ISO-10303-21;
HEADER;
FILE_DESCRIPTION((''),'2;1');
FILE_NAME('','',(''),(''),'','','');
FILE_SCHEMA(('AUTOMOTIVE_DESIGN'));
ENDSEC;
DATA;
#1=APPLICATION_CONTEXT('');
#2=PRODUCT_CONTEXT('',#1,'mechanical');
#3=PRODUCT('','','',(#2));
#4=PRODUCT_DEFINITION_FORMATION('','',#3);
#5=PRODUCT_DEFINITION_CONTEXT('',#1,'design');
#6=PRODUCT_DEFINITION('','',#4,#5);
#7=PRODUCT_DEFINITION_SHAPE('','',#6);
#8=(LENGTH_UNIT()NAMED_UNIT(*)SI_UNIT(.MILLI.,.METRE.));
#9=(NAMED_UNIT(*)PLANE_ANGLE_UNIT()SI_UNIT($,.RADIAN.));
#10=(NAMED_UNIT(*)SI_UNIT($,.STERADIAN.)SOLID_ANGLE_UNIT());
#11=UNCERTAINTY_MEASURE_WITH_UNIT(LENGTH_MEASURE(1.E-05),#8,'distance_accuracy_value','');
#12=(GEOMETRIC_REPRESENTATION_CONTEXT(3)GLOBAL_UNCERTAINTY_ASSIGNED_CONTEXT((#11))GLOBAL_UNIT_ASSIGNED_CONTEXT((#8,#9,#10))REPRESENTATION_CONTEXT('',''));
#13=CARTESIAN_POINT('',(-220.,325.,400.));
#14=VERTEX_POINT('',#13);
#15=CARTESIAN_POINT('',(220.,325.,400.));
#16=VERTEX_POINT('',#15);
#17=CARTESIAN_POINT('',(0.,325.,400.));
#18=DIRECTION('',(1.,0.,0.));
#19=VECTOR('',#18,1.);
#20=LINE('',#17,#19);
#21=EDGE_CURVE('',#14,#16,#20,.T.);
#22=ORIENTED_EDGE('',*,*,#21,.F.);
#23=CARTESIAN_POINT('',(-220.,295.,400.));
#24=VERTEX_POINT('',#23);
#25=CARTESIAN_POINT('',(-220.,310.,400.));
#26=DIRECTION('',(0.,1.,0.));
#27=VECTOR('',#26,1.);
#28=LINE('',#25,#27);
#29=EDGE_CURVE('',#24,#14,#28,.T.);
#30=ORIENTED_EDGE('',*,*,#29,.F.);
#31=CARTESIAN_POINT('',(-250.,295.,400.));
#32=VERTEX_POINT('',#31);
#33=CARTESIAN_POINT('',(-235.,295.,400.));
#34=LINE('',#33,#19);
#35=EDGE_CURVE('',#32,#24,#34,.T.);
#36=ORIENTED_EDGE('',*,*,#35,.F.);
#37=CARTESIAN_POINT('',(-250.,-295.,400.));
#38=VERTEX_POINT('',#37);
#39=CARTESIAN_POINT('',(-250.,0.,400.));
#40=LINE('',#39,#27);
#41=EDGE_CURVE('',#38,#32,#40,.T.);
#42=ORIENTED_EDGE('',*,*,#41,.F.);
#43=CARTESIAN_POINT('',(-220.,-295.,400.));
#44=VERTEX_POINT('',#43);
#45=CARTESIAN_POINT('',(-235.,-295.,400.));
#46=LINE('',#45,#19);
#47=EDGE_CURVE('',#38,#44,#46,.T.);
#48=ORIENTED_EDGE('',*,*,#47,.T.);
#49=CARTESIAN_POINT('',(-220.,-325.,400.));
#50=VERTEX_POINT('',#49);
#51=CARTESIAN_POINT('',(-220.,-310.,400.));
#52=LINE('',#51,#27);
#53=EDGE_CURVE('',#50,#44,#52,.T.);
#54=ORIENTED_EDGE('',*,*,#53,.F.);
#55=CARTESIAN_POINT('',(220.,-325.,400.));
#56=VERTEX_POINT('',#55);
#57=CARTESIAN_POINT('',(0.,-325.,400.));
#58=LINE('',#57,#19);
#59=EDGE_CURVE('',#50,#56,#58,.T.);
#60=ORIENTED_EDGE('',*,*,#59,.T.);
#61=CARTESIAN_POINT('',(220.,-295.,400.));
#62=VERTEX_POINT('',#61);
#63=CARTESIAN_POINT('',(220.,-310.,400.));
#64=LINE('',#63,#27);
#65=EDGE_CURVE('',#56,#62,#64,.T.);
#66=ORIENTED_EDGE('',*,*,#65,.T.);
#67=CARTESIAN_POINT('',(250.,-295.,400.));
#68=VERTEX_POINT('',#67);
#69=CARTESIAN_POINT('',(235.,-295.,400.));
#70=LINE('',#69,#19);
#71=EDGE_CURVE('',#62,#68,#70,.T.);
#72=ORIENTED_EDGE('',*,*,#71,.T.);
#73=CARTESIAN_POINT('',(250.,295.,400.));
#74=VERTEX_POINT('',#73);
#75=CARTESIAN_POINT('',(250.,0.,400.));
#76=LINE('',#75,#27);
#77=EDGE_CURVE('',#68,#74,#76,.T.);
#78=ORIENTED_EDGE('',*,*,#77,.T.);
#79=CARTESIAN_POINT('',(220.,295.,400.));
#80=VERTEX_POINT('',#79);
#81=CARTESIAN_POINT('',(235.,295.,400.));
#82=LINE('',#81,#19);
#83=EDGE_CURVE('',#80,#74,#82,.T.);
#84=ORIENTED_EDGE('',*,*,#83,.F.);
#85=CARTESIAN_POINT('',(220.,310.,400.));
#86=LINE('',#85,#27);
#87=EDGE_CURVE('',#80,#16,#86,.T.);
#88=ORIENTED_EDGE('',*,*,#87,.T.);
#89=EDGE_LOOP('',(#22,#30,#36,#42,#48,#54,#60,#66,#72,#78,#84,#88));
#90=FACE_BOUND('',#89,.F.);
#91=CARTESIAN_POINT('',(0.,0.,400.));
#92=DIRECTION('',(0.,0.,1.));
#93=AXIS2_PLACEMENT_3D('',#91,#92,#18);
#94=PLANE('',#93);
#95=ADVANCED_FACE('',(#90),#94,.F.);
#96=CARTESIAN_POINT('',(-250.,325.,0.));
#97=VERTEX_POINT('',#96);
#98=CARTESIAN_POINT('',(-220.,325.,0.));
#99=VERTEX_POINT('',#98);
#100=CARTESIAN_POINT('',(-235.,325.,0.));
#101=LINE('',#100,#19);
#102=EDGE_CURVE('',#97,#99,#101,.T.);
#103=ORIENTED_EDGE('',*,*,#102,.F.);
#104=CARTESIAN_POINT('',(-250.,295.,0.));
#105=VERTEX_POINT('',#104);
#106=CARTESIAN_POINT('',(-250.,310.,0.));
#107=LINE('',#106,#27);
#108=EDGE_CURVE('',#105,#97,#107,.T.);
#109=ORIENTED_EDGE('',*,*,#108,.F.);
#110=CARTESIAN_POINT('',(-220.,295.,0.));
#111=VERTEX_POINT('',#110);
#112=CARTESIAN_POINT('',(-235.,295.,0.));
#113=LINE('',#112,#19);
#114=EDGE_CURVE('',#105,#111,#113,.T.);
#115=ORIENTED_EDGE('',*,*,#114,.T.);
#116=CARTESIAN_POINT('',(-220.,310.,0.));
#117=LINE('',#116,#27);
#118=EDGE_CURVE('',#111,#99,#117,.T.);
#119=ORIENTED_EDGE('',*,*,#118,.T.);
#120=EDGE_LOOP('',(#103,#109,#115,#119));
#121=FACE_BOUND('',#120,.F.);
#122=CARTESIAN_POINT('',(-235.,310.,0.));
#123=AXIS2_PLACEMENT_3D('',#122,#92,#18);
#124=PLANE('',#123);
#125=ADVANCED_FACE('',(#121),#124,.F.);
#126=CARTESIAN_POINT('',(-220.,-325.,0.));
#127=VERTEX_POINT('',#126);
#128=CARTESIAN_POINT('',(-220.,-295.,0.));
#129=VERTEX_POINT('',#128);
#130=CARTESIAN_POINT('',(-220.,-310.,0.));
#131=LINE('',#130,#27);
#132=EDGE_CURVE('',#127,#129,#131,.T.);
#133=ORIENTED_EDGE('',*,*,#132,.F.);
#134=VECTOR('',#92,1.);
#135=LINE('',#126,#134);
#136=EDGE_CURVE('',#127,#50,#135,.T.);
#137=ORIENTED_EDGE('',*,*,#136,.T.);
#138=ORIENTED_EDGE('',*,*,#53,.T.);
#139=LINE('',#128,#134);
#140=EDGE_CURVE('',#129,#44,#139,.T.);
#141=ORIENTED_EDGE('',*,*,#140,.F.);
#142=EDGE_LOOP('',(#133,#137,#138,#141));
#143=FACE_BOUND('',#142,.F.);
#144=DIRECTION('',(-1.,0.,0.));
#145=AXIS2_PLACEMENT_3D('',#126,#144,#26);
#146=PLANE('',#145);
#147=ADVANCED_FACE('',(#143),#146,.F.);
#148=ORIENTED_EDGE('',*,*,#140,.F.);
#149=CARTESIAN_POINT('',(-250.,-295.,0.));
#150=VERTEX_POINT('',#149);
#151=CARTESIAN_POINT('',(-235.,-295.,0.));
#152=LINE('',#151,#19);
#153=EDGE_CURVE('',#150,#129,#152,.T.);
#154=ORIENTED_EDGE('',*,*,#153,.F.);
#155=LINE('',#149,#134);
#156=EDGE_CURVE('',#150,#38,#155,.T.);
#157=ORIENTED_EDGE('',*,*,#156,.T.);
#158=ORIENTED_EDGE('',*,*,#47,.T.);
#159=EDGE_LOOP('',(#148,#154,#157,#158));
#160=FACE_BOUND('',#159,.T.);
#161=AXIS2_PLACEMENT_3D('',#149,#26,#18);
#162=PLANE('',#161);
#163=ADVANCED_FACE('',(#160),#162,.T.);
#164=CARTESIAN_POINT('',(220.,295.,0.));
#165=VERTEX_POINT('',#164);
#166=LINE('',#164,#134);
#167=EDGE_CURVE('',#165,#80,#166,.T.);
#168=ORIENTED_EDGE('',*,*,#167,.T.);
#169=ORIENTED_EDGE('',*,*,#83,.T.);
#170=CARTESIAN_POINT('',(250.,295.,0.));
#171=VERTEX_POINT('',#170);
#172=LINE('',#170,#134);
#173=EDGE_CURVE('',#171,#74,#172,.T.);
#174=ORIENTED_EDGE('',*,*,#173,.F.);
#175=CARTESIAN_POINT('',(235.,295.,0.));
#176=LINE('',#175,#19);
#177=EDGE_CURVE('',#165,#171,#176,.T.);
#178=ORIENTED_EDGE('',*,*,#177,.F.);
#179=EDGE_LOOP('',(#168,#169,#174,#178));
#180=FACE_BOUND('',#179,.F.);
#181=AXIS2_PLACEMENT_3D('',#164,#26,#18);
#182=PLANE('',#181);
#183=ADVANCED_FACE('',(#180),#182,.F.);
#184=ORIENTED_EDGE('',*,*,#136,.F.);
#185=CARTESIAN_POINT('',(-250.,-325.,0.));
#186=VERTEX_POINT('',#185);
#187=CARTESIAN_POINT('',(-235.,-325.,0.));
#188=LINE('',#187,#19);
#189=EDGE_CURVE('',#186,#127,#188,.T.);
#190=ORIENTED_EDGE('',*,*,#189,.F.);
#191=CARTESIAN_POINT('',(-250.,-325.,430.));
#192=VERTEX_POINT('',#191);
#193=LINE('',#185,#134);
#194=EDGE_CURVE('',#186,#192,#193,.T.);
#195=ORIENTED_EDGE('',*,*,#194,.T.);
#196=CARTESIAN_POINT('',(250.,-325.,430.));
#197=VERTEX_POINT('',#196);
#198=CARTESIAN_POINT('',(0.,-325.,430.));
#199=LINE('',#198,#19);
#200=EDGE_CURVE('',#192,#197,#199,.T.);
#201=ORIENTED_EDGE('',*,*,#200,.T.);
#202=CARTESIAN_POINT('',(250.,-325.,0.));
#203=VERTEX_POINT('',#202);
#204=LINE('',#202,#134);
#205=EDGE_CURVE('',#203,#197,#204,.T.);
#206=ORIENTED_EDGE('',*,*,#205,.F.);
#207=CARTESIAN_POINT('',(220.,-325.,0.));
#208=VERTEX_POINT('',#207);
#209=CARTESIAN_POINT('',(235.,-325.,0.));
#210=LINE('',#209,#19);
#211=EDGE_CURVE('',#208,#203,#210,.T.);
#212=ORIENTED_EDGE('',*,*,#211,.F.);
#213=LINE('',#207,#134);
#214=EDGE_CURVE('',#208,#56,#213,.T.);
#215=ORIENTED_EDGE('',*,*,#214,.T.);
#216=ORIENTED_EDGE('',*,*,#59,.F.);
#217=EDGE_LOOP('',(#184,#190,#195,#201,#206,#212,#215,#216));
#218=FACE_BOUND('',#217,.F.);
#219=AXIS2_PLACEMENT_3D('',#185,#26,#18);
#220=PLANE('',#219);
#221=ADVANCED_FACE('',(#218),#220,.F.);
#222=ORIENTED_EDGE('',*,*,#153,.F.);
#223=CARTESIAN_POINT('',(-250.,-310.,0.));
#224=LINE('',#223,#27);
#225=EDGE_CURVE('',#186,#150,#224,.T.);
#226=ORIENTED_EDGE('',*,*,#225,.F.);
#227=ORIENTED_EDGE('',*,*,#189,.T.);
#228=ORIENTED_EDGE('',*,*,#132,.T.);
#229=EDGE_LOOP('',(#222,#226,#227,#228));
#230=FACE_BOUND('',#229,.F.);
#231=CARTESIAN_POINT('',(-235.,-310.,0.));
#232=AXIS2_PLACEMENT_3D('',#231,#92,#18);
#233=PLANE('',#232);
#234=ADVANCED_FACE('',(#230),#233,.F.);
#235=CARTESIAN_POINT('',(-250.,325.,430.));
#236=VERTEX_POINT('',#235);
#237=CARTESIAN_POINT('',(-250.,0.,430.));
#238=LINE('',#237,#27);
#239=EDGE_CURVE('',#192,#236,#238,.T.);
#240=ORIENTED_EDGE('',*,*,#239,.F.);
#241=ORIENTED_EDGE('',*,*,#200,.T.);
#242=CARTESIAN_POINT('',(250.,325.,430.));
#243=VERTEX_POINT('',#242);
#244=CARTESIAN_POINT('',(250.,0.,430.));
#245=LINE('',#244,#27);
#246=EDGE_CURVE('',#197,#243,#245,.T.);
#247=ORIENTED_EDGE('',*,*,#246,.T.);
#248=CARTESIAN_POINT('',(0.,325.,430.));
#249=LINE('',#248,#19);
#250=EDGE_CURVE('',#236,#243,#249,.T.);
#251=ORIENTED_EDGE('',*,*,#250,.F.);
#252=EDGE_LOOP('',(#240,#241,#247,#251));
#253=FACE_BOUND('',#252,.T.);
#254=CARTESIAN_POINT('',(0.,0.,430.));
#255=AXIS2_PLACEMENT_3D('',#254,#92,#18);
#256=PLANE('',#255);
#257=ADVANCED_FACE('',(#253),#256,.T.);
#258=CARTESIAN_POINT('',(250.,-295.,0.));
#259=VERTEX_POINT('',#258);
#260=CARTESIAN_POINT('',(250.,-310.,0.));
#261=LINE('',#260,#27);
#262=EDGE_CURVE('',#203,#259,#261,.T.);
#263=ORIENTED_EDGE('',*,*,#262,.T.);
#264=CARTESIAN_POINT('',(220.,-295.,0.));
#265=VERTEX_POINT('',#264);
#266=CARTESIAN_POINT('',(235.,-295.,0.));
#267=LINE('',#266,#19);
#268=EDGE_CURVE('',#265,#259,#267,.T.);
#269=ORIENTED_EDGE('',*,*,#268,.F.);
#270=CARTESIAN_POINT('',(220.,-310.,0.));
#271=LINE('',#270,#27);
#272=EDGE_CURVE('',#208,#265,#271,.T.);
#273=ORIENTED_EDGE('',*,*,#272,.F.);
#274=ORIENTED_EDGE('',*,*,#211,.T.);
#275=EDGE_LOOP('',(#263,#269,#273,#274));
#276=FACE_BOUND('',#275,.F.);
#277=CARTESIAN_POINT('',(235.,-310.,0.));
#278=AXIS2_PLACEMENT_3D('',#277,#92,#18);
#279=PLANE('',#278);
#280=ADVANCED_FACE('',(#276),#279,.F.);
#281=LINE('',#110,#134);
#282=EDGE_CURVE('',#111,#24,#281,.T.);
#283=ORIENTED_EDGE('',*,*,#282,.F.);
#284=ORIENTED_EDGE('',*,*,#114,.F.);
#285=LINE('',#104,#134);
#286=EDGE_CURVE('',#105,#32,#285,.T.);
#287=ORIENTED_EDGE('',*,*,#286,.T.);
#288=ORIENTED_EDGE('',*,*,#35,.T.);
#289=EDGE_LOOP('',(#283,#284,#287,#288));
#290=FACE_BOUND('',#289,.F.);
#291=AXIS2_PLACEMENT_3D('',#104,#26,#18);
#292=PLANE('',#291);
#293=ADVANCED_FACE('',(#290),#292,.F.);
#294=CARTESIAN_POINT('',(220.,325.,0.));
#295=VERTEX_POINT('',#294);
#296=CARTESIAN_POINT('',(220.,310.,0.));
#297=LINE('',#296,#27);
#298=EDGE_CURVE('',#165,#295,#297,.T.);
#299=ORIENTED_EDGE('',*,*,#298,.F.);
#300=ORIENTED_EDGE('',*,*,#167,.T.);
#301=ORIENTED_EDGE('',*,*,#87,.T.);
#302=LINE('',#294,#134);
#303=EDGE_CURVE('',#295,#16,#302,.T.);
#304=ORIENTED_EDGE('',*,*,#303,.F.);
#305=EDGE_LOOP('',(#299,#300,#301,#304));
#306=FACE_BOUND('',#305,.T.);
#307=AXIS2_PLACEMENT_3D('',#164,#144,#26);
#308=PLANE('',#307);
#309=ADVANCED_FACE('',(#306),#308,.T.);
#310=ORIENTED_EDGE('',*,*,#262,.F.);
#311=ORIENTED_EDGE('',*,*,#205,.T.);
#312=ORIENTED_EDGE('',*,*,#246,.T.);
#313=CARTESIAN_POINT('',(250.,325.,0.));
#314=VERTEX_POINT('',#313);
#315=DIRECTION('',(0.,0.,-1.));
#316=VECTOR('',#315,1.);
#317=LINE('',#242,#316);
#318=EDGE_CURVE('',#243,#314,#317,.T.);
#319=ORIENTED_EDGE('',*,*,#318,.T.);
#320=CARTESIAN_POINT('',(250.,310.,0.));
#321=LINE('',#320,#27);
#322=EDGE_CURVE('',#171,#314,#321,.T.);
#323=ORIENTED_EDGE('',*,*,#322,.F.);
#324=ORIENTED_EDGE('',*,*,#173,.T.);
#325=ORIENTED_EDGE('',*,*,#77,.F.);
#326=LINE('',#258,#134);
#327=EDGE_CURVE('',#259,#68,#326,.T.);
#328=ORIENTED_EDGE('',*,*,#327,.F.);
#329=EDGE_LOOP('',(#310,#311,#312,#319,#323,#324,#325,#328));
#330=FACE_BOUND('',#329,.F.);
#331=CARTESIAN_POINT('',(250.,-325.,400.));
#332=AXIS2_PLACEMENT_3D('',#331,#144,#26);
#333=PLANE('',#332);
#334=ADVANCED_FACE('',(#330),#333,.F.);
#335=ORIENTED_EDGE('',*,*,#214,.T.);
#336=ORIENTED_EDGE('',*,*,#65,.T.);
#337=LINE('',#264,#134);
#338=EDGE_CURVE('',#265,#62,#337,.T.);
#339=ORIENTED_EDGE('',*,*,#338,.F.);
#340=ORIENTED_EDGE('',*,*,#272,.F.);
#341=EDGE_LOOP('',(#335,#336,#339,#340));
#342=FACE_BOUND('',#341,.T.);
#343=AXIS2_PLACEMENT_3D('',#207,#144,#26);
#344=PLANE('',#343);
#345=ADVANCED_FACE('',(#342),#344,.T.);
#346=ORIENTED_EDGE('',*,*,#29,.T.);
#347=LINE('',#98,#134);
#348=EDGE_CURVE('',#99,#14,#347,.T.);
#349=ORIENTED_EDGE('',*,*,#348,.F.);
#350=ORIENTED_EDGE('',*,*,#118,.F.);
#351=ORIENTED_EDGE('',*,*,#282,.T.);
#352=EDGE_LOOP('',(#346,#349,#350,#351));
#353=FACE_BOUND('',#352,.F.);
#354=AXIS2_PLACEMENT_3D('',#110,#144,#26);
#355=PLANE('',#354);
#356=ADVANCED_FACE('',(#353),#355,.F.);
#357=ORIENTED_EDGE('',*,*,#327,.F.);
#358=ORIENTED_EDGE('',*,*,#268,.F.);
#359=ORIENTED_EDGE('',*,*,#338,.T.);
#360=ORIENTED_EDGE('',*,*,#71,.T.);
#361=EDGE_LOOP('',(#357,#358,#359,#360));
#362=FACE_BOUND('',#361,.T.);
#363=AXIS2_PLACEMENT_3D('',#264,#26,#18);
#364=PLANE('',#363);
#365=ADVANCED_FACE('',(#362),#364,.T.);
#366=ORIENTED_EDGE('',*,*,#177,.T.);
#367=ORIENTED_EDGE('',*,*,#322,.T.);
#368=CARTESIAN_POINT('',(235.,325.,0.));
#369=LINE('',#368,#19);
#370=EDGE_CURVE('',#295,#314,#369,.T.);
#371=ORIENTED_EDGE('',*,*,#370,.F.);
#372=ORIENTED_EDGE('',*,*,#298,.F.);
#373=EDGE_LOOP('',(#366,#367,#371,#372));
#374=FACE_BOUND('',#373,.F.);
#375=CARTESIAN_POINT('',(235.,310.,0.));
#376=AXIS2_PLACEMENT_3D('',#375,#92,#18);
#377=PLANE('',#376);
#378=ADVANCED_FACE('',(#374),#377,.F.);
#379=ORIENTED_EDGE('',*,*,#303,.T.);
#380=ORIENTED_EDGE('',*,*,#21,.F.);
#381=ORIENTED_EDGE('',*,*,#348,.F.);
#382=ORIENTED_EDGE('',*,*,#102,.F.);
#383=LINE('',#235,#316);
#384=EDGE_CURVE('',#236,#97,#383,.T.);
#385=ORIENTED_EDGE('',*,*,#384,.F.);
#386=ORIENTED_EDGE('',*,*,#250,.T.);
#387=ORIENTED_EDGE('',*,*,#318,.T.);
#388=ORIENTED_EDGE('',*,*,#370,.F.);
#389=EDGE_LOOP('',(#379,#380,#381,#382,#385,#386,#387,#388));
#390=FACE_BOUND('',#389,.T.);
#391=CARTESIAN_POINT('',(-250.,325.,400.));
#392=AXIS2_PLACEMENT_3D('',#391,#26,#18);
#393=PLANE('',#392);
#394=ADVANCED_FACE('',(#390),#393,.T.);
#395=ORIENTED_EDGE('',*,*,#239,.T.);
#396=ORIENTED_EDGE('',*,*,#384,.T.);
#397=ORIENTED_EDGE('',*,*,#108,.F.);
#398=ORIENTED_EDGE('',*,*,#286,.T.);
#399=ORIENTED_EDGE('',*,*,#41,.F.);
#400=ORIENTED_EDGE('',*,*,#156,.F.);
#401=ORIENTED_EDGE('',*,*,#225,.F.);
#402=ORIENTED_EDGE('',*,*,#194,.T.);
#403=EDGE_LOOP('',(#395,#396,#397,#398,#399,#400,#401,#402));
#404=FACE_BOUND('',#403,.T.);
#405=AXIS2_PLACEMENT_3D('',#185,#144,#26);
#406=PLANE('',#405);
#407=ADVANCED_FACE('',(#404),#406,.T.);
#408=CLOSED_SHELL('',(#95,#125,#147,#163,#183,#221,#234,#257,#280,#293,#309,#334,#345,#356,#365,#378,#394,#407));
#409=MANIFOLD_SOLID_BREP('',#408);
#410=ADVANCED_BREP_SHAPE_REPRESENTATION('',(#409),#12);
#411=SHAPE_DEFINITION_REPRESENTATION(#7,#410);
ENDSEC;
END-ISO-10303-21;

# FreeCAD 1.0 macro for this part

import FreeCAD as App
import Part
import Sketcher
from FreeCAD import Vector


def add_polygon(sketch, points):
    """Adds a closed chain of lines whose ends are joined by coincident constraints."""
    first, n = sketch.GeometryCount, len(points)
    for a, b in zip(points, points[1:] + points[:1]):
        sketch.addGeometry(Part.LineSegment(App.Vector(*a, 0), App.Vector(*b, 0)), False)
    for i in range(n):
        sketch.addConstraint(Sketcher.Constraint("Coincident", first + i, 2, first + (i + 1) % n, 1))

doc = App.newDocument("Part")
body = doc.addObject("PartDesign::Body", "Body")

# Sketch on XY plane
sketch1 = doc.addObject("Sketcher::SketchObject", "Sketch")
body.addObject(sketch1)
sketch1.AttachmentSupport = (doc.XY_Plane, [""])
sketch1.MapMode = "FlatFace"
sketch1.AttachmentOffset = App.Placement(Vector(0, 0, 400), App.Rotation())
add_polygon(sketch1, [(-250, 325), (-250, -325), (250, -325), (250, 325)])  # lines 0-3
sketch1.addConstraint(Sketcher.Constraint("Vertical", 0))
sketch1.addConstraint(Sketcher.Constraint("Horizontal", 1))
sketch1.addConstraint(Sketcher.Constraint("Vertical", 2))
sketch1.addConstraint(Sketcher.Constraint("Horizontal", 3))
sketch1.addConstraint(Sketcher.Constraint("Symmetric", 0, 2, 2, 2, -1, 1))
sketch1.addConstraint(Sketcher.Constraint("DistanceX", 1, 1, 1, 2, 500.0))
sketch1.addConstraint(Sketcher.Constraint("DistanceY", 0, 2, 0, 1, 650.0))
pad1 = doc.addObject("PartDesign::Pad", "Pad")
body.addObject(pad1)
pad1.Profile = sketch1
pad1.Length = 30

# Sketch on XY plane
sketch2 = doc.addObject("Sketcher::SketchObject", "Sketch001")
body.addObject(sketch2)
sketch2.AttachmentSupport = (doc.XY_Plane, [""])
sketch2.MapMode = "FlatFace"
add_polygon(sketch2, [(-250, -295), (-250, -325), (-220, -325), (-220, -295)])  # lines 0-3
add_polygon(sketch2, [(-250, 325), (-250, 295), (-220, 295), (-220, 325)])  # lines 4-7
add_polygon(sketch2, [(220, -295), (220, -325), (250, -325), (250, -295)])  # lines 8-11
add_polygon(sketch2, [(220, 325), (220, 295), (250, 295), (250, 325)])  # lines 12-15
sketch2.addConstraint(Sketcher.Constraint("Vertical", 0))
sketch2.addConstraint(Sketcher.Constraint("Horizontal", 1))
sketch2.addConstraint(Sketcher.Constraint("Vertical", 2))
sketch2.addConstraint(Sketcher.Constraint("Horizontal", 3))
sketch2.addConstraint(Sketcher.Constraint("Vertical", 4))
sketch2.addConstraint(Sketcher.Constraint("Horizontal", 5))
sketch2.addConstraint(Sketcher.Constraint("Vertical", 6))
sketch2.addConstraint(Sketcher.Constraint("Horizontal", 7))
sketch2.addConstraint(Sketcher.Constraint("Vertical", 8))
sketch2.addConstraint(Sketcher.Constraint("Horizontal", 9))
sketch2.addConstraint(Sketcher.Constraint("Vertical", 10))
sketch2.addConstraint(Sketcher.Constraint("Horizontal", 11))
sketch2.addConstraint(Sketcher.Constraint("Vertical", 12))
sketch2.addConstraint(Sketcher.Constraint("Horizontal", 13))
sketch2.addConstraint(Sketcher.Constraint("Vertical", 14))
sketch2.addConstraint(Sketcher.Constraint("Horizontal", 15))
sketch2.addConstraint(Sketcher.Constraint("Symmetric", 6, 2, 8, 2, -1, 1))
sketch2.addConstraint(Sketcher.Constraint("Symmetric", 4, 2, 10, 2, -1, 1))
sketch2.addConstraint(Sketcher.Constraint("Symmetric", 2, 2, 12, 2, -1, 1))
sketch2.addConstraint(Sketcher.Constraint("Symmetric", 0, 2, 14, 2, -1, 1))
sketch2.addConstraint(Sketcher.Constraint("Symmetric", 1, 2, 8, 2, -2))
sketch2.addConstraint(Sketcher.Constraint("Symmetric", 3, 2, 10, 2, -2))
sketch2.addConstraint(Sketcher.Constraint("Equal", 15, 0))
sketch2.addConstraint(Sketcher.Constraint("DistanceX", 1, 1, 1, 2, 30.0))
sketch2.addConstraint(Sketcher.Constraint("DistanceX", 0, 2, -1, 1, 250.0))
sketch2.addConstraint(Sketcher.Constraint("DistanceY", 0, 2, -1, 1, 325.0))
pad2 = doc.addObject("PartDesign::Pad", "Pad001")
body.addObject(pad2)
pad2.Profile = sketch2
pad2.Type = "UpToLast"

doc.recompute()
